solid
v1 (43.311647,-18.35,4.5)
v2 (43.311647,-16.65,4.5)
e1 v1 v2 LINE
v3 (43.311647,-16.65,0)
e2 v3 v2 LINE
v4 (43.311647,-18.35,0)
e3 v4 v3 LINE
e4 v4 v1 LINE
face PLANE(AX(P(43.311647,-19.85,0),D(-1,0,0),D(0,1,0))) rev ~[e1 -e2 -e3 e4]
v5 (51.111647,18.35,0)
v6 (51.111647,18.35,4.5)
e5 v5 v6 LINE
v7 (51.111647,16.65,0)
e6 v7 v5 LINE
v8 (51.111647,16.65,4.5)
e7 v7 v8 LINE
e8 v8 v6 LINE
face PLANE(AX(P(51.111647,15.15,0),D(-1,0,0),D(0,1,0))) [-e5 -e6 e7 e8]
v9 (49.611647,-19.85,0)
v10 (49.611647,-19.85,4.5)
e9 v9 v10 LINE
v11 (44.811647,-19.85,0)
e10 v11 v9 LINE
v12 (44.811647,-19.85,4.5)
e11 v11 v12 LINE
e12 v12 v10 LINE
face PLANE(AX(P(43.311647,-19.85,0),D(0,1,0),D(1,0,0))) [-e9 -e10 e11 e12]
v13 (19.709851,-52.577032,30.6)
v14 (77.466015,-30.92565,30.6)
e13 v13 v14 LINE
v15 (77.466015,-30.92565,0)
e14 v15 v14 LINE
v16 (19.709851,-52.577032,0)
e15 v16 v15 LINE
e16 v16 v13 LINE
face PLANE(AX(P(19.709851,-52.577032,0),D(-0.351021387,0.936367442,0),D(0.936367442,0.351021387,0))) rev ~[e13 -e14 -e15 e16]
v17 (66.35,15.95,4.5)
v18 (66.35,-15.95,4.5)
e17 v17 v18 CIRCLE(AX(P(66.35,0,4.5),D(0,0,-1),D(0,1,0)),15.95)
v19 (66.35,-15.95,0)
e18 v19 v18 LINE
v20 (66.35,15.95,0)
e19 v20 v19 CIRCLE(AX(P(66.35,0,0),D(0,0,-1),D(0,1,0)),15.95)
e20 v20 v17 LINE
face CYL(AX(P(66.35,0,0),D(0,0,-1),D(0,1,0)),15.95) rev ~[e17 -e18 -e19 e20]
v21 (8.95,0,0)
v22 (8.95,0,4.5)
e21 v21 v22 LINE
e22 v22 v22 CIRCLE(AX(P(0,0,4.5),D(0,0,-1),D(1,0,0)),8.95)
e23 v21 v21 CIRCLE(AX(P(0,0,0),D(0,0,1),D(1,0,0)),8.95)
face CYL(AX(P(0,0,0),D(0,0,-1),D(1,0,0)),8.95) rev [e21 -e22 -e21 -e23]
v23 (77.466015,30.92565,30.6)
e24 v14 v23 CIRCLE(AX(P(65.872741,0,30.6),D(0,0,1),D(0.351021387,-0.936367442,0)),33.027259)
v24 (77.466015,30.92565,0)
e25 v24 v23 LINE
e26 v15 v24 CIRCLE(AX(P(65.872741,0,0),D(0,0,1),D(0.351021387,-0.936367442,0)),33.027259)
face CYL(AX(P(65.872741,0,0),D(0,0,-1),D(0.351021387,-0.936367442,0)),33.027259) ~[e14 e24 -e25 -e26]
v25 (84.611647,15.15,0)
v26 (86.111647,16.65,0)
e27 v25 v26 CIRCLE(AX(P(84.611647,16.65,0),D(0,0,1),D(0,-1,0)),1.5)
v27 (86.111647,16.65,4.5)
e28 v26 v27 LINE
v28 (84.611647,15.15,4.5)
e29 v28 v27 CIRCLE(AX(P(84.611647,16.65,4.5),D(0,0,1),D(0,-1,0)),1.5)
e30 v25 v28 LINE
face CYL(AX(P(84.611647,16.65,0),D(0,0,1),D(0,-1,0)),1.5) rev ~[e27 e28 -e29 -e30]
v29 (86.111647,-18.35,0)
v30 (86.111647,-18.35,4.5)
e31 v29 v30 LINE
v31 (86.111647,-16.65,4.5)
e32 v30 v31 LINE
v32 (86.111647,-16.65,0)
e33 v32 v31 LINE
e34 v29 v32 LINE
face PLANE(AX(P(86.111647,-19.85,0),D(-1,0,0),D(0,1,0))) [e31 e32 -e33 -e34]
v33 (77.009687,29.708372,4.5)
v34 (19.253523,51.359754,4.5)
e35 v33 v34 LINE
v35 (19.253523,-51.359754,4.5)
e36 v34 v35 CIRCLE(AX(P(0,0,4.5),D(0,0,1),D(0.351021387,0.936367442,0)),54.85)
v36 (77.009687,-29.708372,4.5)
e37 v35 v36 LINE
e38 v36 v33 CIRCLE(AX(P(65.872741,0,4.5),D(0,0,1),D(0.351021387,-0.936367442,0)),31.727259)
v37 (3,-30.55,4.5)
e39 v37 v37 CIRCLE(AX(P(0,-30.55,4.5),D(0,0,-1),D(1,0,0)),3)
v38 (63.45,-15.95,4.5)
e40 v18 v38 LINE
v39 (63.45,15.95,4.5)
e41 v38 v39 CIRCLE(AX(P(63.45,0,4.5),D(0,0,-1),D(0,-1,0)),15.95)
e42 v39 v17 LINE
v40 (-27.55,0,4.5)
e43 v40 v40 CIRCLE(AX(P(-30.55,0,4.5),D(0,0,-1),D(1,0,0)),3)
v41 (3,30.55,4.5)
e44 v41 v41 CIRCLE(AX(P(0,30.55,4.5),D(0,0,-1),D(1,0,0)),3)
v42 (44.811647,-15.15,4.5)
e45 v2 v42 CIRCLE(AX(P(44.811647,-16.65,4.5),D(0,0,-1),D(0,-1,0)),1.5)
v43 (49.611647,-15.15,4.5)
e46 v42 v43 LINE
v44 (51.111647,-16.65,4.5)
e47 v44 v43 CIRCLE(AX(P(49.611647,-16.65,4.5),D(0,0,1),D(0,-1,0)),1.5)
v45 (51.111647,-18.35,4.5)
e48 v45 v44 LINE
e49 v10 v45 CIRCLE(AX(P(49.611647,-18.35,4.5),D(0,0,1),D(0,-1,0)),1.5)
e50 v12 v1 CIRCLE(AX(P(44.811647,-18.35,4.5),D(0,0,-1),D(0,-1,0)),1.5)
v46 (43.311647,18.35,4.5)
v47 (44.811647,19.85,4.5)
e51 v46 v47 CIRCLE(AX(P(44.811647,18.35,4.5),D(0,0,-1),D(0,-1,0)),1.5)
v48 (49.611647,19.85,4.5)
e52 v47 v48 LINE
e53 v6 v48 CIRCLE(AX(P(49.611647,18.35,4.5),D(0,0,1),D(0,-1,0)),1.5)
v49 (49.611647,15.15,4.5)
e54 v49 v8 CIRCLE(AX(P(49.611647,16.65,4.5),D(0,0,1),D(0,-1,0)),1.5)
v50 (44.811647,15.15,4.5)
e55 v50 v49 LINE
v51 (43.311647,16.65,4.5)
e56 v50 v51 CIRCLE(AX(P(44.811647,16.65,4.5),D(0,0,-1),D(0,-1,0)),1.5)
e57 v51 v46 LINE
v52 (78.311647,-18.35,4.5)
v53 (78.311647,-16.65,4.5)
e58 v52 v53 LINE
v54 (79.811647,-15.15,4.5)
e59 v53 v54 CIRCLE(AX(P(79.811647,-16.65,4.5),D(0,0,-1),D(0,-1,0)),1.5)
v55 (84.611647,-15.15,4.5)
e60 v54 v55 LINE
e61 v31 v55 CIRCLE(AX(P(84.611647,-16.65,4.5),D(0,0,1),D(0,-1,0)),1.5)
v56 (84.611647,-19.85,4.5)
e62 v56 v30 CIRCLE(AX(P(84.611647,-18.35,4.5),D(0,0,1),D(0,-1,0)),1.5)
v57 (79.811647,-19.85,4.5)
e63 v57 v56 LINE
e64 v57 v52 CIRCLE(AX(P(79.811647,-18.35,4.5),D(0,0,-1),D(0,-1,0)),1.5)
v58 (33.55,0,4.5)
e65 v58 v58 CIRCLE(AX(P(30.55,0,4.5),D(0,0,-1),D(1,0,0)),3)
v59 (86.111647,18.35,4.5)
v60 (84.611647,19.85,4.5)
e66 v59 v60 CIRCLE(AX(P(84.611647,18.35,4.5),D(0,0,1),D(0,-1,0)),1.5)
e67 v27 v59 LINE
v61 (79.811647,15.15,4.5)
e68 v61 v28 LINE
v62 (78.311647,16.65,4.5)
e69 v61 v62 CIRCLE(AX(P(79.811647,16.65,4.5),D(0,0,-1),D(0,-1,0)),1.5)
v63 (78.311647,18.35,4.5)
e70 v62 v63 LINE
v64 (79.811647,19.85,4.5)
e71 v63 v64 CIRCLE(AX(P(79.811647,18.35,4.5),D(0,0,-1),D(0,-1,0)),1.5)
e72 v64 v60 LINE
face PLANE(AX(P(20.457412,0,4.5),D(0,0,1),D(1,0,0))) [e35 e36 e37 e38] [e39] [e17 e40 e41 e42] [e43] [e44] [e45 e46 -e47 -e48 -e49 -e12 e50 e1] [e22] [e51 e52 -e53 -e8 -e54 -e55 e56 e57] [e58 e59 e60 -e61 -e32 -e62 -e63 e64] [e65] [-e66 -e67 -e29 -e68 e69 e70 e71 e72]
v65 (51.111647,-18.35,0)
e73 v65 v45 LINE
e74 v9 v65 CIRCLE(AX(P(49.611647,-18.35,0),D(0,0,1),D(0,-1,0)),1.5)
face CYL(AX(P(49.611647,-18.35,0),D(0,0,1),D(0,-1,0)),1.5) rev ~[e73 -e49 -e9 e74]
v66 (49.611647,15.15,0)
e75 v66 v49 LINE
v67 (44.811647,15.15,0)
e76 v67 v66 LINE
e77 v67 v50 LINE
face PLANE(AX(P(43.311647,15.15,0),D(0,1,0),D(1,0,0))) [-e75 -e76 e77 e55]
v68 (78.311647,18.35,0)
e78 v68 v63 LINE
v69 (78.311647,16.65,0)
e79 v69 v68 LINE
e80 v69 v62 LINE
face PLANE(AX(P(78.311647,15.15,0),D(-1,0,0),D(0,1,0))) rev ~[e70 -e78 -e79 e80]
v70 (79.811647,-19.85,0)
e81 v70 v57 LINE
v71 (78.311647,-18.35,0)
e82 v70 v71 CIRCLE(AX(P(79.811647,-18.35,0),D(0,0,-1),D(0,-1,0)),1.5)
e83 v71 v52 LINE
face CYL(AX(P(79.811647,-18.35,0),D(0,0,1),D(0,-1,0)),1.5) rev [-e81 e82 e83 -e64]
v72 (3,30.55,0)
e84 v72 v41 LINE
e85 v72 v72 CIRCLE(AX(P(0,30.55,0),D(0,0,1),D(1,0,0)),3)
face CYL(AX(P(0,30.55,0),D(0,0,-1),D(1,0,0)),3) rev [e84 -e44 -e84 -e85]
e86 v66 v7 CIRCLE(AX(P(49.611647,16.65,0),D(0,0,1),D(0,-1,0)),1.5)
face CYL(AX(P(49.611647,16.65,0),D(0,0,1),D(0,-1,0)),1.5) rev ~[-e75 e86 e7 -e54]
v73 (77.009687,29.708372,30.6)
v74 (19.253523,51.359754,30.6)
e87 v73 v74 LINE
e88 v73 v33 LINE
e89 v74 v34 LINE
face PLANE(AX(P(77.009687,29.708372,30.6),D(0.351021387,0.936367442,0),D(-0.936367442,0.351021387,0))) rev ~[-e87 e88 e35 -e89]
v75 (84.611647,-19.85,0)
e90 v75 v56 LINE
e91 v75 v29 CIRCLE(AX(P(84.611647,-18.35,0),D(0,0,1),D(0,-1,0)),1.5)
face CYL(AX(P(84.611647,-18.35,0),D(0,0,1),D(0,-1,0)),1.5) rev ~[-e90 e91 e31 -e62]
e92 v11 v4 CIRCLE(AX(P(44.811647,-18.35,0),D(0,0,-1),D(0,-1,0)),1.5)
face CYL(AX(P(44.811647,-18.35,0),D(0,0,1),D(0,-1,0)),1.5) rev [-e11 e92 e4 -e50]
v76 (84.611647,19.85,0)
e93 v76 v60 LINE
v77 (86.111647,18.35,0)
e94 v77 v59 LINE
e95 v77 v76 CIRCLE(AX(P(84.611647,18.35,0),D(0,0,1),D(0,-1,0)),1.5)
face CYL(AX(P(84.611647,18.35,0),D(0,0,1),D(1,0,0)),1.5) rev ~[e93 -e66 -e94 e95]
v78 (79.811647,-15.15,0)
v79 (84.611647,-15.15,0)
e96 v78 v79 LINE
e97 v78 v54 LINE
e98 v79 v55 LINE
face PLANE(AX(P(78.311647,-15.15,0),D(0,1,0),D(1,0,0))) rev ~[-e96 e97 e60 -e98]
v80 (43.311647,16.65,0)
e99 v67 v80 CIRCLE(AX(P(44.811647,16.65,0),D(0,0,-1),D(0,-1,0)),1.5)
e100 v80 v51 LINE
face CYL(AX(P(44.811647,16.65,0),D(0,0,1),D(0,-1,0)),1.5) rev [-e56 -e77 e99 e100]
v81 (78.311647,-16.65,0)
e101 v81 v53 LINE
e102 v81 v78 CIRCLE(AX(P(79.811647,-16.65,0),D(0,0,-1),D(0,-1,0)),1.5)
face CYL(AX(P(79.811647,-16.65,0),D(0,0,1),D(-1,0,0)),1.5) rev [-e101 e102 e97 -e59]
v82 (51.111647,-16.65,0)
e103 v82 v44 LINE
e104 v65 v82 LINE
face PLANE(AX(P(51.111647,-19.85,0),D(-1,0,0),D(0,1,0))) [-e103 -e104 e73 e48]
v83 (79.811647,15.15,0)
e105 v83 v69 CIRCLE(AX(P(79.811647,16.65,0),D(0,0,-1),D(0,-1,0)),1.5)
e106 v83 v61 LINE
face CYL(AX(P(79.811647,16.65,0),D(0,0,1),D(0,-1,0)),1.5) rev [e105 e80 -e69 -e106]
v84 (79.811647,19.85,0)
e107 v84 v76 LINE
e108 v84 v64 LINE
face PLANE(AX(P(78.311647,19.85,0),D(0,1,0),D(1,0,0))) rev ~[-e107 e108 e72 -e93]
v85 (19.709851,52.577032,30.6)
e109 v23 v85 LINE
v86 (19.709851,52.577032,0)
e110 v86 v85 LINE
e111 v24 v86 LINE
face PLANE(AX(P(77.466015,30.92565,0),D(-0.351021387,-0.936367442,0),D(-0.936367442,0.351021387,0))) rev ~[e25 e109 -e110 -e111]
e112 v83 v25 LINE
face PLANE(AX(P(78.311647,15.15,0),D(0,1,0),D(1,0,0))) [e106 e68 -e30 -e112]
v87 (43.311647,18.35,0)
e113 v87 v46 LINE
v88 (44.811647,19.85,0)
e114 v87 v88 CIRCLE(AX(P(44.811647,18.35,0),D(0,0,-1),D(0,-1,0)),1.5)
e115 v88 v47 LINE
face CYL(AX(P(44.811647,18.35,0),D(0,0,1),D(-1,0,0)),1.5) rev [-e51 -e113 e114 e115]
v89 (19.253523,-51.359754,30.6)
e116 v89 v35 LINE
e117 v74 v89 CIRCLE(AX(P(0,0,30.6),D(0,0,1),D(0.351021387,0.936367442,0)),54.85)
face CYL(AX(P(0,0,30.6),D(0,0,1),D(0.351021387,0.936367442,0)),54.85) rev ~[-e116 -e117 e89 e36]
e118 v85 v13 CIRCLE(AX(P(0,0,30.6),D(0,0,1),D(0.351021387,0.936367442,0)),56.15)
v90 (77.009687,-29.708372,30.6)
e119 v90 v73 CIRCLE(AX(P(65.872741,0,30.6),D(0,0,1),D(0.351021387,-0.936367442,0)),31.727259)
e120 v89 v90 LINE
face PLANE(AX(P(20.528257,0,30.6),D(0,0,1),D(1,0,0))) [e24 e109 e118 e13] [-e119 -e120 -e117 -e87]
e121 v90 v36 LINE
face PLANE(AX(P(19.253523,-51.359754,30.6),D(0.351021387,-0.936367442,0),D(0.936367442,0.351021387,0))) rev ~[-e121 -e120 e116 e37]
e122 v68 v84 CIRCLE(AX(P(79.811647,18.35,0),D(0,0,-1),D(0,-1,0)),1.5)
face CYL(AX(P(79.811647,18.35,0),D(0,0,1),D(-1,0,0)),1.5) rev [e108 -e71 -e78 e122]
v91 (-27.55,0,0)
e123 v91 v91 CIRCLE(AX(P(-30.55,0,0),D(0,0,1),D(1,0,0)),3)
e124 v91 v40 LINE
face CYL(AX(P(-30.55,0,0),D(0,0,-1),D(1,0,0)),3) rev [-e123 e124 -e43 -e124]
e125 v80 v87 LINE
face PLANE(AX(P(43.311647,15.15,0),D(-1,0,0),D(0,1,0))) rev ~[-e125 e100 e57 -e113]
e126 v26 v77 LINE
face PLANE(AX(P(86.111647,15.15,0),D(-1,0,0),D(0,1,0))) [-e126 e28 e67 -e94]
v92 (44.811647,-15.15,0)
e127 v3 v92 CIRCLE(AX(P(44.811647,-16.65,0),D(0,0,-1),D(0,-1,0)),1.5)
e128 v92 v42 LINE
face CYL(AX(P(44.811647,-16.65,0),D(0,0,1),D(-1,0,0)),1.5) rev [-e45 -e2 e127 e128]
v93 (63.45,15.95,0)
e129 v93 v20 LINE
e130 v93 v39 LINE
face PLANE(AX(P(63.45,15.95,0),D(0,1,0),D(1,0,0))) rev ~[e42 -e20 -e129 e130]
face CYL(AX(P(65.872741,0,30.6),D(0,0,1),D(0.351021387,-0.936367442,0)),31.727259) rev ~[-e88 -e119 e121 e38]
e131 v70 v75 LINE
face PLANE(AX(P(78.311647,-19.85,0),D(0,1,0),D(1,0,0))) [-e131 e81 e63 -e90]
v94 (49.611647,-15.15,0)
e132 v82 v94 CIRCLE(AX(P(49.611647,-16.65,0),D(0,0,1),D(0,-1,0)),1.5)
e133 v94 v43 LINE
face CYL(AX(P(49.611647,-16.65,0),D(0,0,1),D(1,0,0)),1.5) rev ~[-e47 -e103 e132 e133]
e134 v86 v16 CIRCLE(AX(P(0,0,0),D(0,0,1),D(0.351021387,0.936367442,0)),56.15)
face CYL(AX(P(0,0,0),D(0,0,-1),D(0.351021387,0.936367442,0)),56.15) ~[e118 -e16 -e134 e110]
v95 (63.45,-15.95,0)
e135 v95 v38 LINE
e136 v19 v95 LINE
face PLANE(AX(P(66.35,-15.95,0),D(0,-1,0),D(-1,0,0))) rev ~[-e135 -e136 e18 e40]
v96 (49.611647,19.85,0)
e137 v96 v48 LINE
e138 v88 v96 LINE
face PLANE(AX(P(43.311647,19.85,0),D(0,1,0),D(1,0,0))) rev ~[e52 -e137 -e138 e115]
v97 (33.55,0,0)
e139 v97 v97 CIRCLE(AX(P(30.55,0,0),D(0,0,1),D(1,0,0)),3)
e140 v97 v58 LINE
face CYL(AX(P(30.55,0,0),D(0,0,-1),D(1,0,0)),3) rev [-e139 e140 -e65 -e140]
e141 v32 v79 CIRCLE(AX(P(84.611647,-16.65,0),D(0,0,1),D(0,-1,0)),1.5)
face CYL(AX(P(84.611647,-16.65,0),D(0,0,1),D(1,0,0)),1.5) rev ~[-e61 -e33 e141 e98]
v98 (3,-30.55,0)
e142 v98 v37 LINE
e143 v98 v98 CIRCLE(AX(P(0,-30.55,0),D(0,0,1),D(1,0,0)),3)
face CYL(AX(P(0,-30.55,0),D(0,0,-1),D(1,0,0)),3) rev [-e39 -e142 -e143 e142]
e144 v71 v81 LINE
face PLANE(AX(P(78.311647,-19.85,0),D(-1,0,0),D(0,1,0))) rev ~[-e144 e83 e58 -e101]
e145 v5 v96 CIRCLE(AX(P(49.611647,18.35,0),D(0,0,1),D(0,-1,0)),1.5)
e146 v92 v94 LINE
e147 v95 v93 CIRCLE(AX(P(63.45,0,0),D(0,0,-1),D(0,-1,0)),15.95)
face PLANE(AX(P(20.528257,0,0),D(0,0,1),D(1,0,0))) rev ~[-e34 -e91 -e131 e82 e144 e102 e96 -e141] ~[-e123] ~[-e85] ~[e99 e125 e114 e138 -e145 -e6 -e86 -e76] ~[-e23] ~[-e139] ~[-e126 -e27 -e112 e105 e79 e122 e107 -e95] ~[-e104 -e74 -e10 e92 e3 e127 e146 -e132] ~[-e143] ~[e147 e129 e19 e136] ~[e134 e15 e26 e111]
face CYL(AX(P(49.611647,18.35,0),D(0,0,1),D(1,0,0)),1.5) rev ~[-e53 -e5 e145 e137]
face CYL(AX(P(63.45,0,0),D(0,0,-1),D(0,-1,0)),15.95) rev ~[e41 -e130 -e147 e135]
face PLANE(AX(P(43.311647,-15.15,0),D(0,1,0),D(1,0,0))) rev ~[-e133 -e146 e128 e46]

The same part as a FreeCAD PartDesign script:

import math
import FreeCAD as App
import Part
import Sketcher
from FreeCAD import Vector
Q = App.Units.Quantity


def edges_at(feature, points):
    """Names of the edges that pass closest to the given points."""
    edges = feature.Shape.Edges
    near = lambda p: min(range(len(edges)), key=lambda i: edges[i].distToShape(Part.Vertex(*p))[0])
    return sorted({f"Edge{near(p) + 1}" for p in points})

doc = App.newDocument("Part")
body = doc.addObject("PartDesign::Body", "Body")

# Sketch on XY plane
sketch1 = doc.addObject("Sketcher::SketchObject", "Sketch")
body.addObject(sketch1)
sketch1.AttachmentSupport = (doc.XY_Plane, [""])
sketch1.MapMode = "FlatFace"
sketch1.addGeometry([
    Part.ArcOfCircle(Part.Circle(Vector(65.9, 0, 0), Vector(0, 0, 1), 33), math.radians(-69), math.radians(69)),  # 0
    Part.LineSegment(Vector(77.5, 30.9, 0), Vector(19.7, 52.6, 0)),  # 1
    Part.ArcOfCircle(Part.Circle(Vector(0, 0, 0), Vector(0, 0, 1), 56.1), math.radians(69), math.radians(291)),  # 2
    Part.LineSegment(Vector(19.7, -52.6, 0), Vector(77.5, -30.9, 0)),  # 3
    Part.Circle(Vector(0, -30.6, 0), Vector(0, 0, 1), 3),  # 4
    Part.LineSegment(Vector(51.1, -19.9, 0), Vector(43.3, -19.9, 0)),  # 5
    Part.LineSegment(Vector(43.3, -19.9, 0), Vector(43.3, -15.2, 0)),  # 6
    Part.LineSegment(Vector(43.3, -15.2, 0), Vector(51.1, -15.2, 0)),  # 7
    Part.LineSegment(Vector(51.1, -15.2, 0), Vector(51.1, -19.9, 0)),  # 8
    Part.LineSegment(Vector(86.1, -19.9, 0), Vector(78.3, -19.9, 0)),  # 9
    Part.LineSegment(Vector(78.3, -19.9, 0), Vector(78.3, -15.2, 0)),  # 10
    Part.LineSegment(Vector(78.3, -15.2, 0), Vector(86.1, -15.2, 0)),  # 11
    Part.LineSegment(Vector(86.1, -15.2, 0), Vector(86.1, -19.9, 0)),  # 12
    Part.Circle(Vector(-30.6, 0, 0), Vector(0, 0, 1), 3),  # 13
    Part.Circle(Vector(0, 0, 0), Vector(0, 0, 1), 8.9),  # 14
    Part.Circle(Vector(0, 30.6, 0), Vector(0, 0, 1), 3),  # 15
    Part.Circle(Vector(30.6, 0, 0), Vector(0, 0, 1), 3),  # 16
    Part.ArcOfCircle(Part.Circle(Vector(63.5, 0, 0), Vector(0, 0, 1), 15.9), math.radians(90), math.radians(270)),  # 17
    Part.LineSegment(Vector(63.5, 15.9, 0), Vector(66.3, 15.9, 0)),  # 18
    Part.ArcOfCircle(Part.Circle(Vector(66.3, 0, 0), Vector(0, 0, 1), 15.9), math.radians(-90), math.radians(90)),  # 19
    Part.LineSegment(Vector(66.3, -15.9, 0), Vector(63.5, -15.9, 0)),  # 20
    Part.LineSegment(Vector(51.1, 15.2, 0), Vector(43.3, 15.2, 0)),  # 21
    Part.LineSegment(Vector(43.3, 15.2, 0), Vector(43.3, 19.9, 0)),  # 22
    Part.LineSegment(Vector(43.3, 19.9, 0), Vector(51.1, 19.9, 0)),  # 23
    Part.LineSegment(Vector(51.1, 19.9, 0), Vector(51.1, 15.2, 0)),  # 24
    Part.LineSegment(Vector(86.1, 15.2, 0), Vector(78.3, 15.2, 0)),  # 25
    Part.LineSegment(Vector(78.3, 15.2, 0), Vector(78.3, 19.9, 0)),  # 26
    Part.LineSegment(Vector(78.3, 19.9, 0), Vector(86.1, 19.9, 0)),  # 27
    Part.LineSegment(Vector(86.1, 19.9, 0), Vector(86.1, 15.2, 0)),  # 28
], False)
sketch1.addConstraint([
    Sketcher.Constraint("Tangent", 0, 2, 1, 1),
    Sketcher.Constraint("Tangent", 1, 2, 2, 1),
    Sketcher.Constraint("Tangent", 2, 2, 3, 1),
    Sketcher.Constraint("Tangent", 3, 2, 0, 1),
    Sketcher.Constraint("Coincident", 5, 2, 6, 1),
    Sketcher.Constraint("Coincident", 6, 2, 7, 1),
    Sketcher.Constraint("Coincident", 7, 2, 8, 1),
    Sketcher.Constraint("Coincident", 8, 2, 5, 1),
    Sketcher.Constraint("Coincident", 9, 2, 10, 1),
    Sketcher.Constraint("Coincident", 10, 2, 11, 1),
    Sketcher.Constraint("Coincident", 11, 2, 12, 1),
    Sketcher.Constraint("Coincident", 12, 2, 9, 1),
    Sketcher.Constraint("Tangent", 17, 1, 18, 1),
    Sketcher.Constraint("Tangent", 18, 2, 19, 2),
    Sketcher.Constraint("Tangent", 19, 1, 20, 1),
    Sketcher.Constraint("Tangent", 20, 2, 17, 2),
    Sketcher.Constraint("Coincident", 21, 2, 22, 1),
    Sketcher.Constraint("Coincident", 22, 2, 23, 1),
    Sketcher.Constraint("Coincident", 23, 2, 24, 1),
    Sketcher.Constraint("Coincident", 24, 2, 21, 1),
    Sketcher.Constraint("Coincident", 25, 2, 26, 1),
    Sketcher.Constraint("Coincident", 26, 2, 27, 1),
    Sketcher.Constraint("Coincident", 27, 2, 28, 1),
    Sketcher.Constraint("Coincident", 28, 2, 25, 1),
    Sketcher.Constraint("Horizontal", 5),
    Sketcher.Constraint("Vertical", 6),
    Sketcher.Constraint("Horizontal", 7),
    Sketcher.Constraint("Vertical", 8),
    Sketcher.Constraint("Horizontal", 9),
    Sketcher.Constraint("Vertical", 10),
    Sketcher.Constraint("Horizontal", 11),
    Sketcher.Constraint("Vertical", 12),
    Sketcher.Constraint("Horizontal", 18),
    Sketcher.Constraint("Horizontal", 20),
    Sketcher.Constraint("Horizontal", 21),
    Sketcher.Constraint("Vertical", 22),
    Sketcher.Constraint("Horizontal", 23),
    Sketcher.Constraint("Vertical", 24),
    Sketcher.Constraint("Horizontal", 25),
    Sketcher.Constraint("Vertical", 26),
    Sketcher.Constraint("Horizontal", 27),
    Sketcher.Constraint("Vertical", 28),
    Sketcher.Constraint("Coincident", 2, 3, -1, 1),
    Sketcher.Constraint("Coincident", 14, 3, -1, 1),
    Sketcher.Constraint("Equal", 4, 13),
    Sketcher.Constraint("Equal", 13, 15),
    Sketcher.Constraint("Equal", 15, 16),
    Sketcher.Constraint("Symmetric", 4, 3, 15, 3, -1, 1),
    Sketcher.Constraint("Symmetric", 13, 3, 16, 3, -1, 1),
    Sketcher.Constraint("Symmetric", 6, 2, 21, 2, -1),
    Sketcher.Constraint("Symmetric", 8, 2, 23, 2, -1),
    Sketcher.Constraint("Symmetric", 10, 2, 25, 2, -1),
    Sketcher.Constraint("Symmetric", 12, 2, 27, 2, -1),
    Sketcher.Constraint("PointOnObject", 0, 3, -1),
    Sketcher.Constraint("PointOnObject", 4, 3, -2),
    Sketcher.Constraint("PointOnObject", 13, 3, -1),
    Sketcher.Constraint("PointOnObject", 17, 3, -1),
    Sketcher.Constraint("Horizontal", 8, 2, 9, 2),
    Sketcher.Constraint("Horizontal", 7, 2, 10, 2),
    Sketcher.Constraint("Equal", 7, 9),
    Sketcher.Constraint("Diameter", 4, Q("6 mm")),
    Sketcher.Constraint("Diameter", 14, Q("17.9 mm")),
    Sketcher.Constraint("Radius", 2, Q("56.15 mm")),
    Sketcher.Constraint("Radius", 17, Q("15.95 mm")),
    Sketcher.Constraint("DistanceX", 5, 2, 5, 1, Q("7.8 mm")),
    Sketcher.Constraint("DistanceX", 18, 1, 18, 2, Q("2.9 mm")),
    Sketcher.Constraint("DistanceY", 6, 1, 6, 2, Q("4.7 mm")),
    Sketcher.Constraint("DistanceY", 4, 3, 15, 3, Q("61.1 mm")),
    Sketcher.Constraint("DistanceX", 16, 3, 17, 3, Q("32.9 mm")),
    Sketcher.Constraint("DistanceX", 8, 2, 9, 2, Q("27.2 mm")),
    Sketcher.Constraint("DistanceY", 7, 2, 17, 1, Q("31.1 mm")),
    Sketcher.Constraint("DistanceX", 13, 3, -1, 1, Q("30.55 mm")),
    Sketcher.Constraint("Radius", 0, Q("33.027259 mm")),
    Sketcher.Constraint("Distance", 1, Q("61.68109 mm")),
    Sketcher.Constraint("DistanceX", -1, 1, 5, 2, Q("43.311647 mm")),
])
pad1 = doc.addObject("PartDesign::Pad", "Pad")
body.addObject(pad1)
pad1.Profile = sketch1
pad1.Length = 30.6

# Sketch on XY plane
sketch2 = doc.addObject("Sketcher::SketchObject", "Sketch001")
body.addObject(sketch2)
sketch2.AttachmentSupport = (doc.XY_Plane, [""])
sketch2.MapMode = "FlatFace"
sketch2.AttachmentOffset = App.Placement(Vector(0, 0, 30.6), App.Rotation())
sketch2.addGeometry([
    Part.LineSegment(Vector(77, 30, 0), Vector(19, 51, 0)),
    Part.ArcOfCircle(Part.Circle(Vector(0, 0, 0), Vector(0, 0, 1), 55), math.radians(69), math.radians(291)),
    Part.LineSegment(Vector(19, -51, 0), Vector(77, -30, 0)),
    Part.ArcOfCircle(Part.Circle(Vector(66, 0, 0), Vector(0, 0, 1), 32), math.radians(-69), math.radians(69)),
], False)
sketch2.addConstraint([
    Sketcher.Constraint("Tangent", 0, 2, 1, 1),
    Sketcher.Constraint("Tangent", 1, 2, 2, 1),
    Sketcher.Constraint("Tangent", 2, 2, 3, 1),
    Sketcher.Constraint("Tangent", 3, 2, 0, 1),
    Sketcher.Constraint("Coincident", 1, 3, -1, 1),
    Sketcher.Constraint("PointOnObject", 3, 3, -1),
    Sketcher.Constraint("Radius", 1, Q("54.85 mm")),
    Sketcher.Constraint("Radius", 3, Q("31.727259 mm")),
    Sketcher.Constraint("Distance", 0, Q("61.68109 mm")),
])
pocket1 = doc.addObject("PartDesign::Pocket", "Pocket")
body.addObject(pocket1)
pocket1.Profile = sketch2
pocket1.Length = 26.1
doc.recompute()

fillet = doc.addObject("PartDesign::Fillet", "Fillet")
body.addObject(fillet)
fillet.Base = (pocket1, edges_at(pocket1, [
    (51.112, -19.85, 2.25),
    (51.112, -15.15, 2.25),
    (86.112, -19.85, 2.25),
    (86.112, -15.15, 2.25),
    (51.112, 15.15, 2.25),
    (51.112, 19.85, 2.25),
    (43.312, -15.15, 2.25),
    (43.312, -19.85, 2.25),
    (78.312, -15.15, 2.25),
    (78.312, -19.85, 2.25),
    (86.112, 15.15, 2.25),
    (86.112, 19.85, 2.25),
    (78.312, 19.85, 2.25),
    (78.312, 15.15, 2.25),
    (43.312, 19.85, 2.25),
    (43.312, 15.15, 2.25),
]))
fillet.Radius = 1.5

doc.recompute()
